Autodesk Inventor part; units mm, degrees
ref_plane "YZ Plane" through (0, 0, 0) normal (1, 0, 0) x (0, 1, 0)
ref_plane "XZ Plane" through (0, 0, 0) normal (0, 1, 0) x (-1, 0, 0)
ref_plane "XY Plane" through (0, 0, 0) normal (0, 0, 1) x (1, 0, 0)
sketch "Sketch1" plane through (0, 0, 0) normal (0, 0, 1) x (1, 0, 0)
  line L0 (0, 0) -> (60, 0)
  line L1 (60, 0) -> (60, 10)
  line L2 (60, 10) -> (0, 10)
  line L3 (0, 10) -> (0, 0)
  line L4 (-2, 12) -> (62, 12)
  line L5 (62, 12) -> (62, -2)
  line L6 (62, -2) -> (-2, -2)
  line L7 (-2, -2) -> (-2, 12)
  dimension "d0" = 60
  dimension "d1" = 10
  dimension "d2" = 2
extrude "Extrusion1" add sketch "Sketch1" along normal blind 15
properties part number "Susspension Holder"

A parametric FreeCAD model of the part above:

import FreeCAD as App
import Part
import Sketcher

V = App.Vector
Q = App.Units.Quantity

doc = App.newDocument("Part")
params = doc.addObject("Spreadsheet::Sheet", "Params")
for row, (alias, value) in enumerate([
    ("sketch1_width", "60 mm"),
    ("sketch1_height", "10 mm"),
    ("pad1_length", "15 mm"),
], start=1):
    params.set(f"A{row}", alias)
    params.set(f"B{row}", "=" + value)
    params.setAlias(f"B{row}", alias)

body = doc.addObject("PartDesign::Body", "Body")

sketch1 = body.newObject("Sketcher::SketchObject", "Sketch")
sketch1.AttachmentSupport = (doc.getObject("XY_Plane"), [""])
sketch1.MapMode = "FlatFace"
sketch1.addGeometry(Part.LineSegment(V(62, 12, 0), V(-2, 12, 0)), False)
sketch1.addGeometry(Part.LineSegment(V(-2, 12, 0), V(-2, -2, 0)), False)
sketch1.addGeometry(Part.LineSegment(V(-2, -2, 0), V(62, -2, 0)), False)
sketch1.addGeometry(Part.LineSegment(V(62, -2, 0), V(62, 12, 0)), False)
sketch1.addGeometry(Part.LineSegment(V(60, 0, 0), V(0, 0, 0)), False)
sketch1.addGeometry(Part.LineSegment(V(0, 0, 0), V(0, 10, 0)), False)
sketch1.addGeometry(Part.LineSegment(V(0, 10, 0), V(60, 10, 0)), False)
sketch1.addGeometry(Part.LineSegment(V(60, 10, 0), V(60, 0, 0)), False)
sketch1.addConstraint(Sketcher.Constraint("Coincident", 0, 2, 1, 1))
sketch1.addConstraint(Sketcher.Constraint("Coincident", 1, 2, 2, 1))
sketch1.addConstraint(Sketcher.Constraint("Coincident", 2, 2, 3, 1))
sketch1.addConstraint(Sketcher.Constraint("Coincident", 3, 2, 0, 1))
sketch1.addConstraint(Sketcher.Constraint("Coincident", 4, 2, 5, 1))
sketch1.addConstraint(Sketcher.Constraint("Coincident", 5, 2, 6, 1))
sketch1.addConstraint(Sketcher.Constraint("Coincident", 6, 2, 7, 1))
sketch1.addConstraint(Sketcher.Constraint("Coincident", 7, 2, 4, 1))
sketch1.addConstraint(Sketcher.Constraint("Horizontal", 0))
sketch1.addConstraint(Sketcher.Constraint("Vertical", 1))
sketch1.addConstraint(Sketcher.Constraint("Horizontal", 2))
sketch1.addConstraint(Sketcher.Constraint("Vertical", 3))
sketch1.addConstraint(Sketcher.Constraint("Horizontal", 4))
sketch1.addConstraint(Sketcher.Constraint("Vertical", 5))
sketch1.addConstraint(Sketcher.Constraint("Horizontal", 6))
sketch1.addConstraint(Sketcher.Constraint("Vertical", 7))
sketch1.addConstraint(Sketcher.Constraint("Coincident", 4, 2, -1, 1))
sketch1.addConstraint(Sketcher.Constraint("DistanceX", 4, 2, 4, 1, Q("60 mm")))
sketch1.addConstraint(Sketcher.Constraint("DistanceY", 5, 1, 5, 2, Q("10 mm")))
sketch1.addConstraint(Sketcher.Constraint("DistanceX", 0, 2, -1, 1, Q("2 mm")))
sketch1.addConstraint(Sketcher.Constraint("DistanceY", 1, 2, -1, 1, Q("2 mm")))
sketch1.addConstraint(Sketcher.Constraint("DistanceY", 5, 2, 0, 2, Q("2 mm")))
sketch1.addConstraint(Sketcher.Constraint("DistanceX", 6, 2, 3, 2, Q("2 mm")))
sketch1.setExpression("Constraints[17]", "Params.sketch1_width")
sketch1.setExpression("Constraints[18]", "Params.sketch1_height")
pad1 = body.newObject("PartDesign::Pad", "Pad")
pad1.Profile = sketch1
pad1.setExpression("Length", "Params.pad1_length")

doc.recompute()
